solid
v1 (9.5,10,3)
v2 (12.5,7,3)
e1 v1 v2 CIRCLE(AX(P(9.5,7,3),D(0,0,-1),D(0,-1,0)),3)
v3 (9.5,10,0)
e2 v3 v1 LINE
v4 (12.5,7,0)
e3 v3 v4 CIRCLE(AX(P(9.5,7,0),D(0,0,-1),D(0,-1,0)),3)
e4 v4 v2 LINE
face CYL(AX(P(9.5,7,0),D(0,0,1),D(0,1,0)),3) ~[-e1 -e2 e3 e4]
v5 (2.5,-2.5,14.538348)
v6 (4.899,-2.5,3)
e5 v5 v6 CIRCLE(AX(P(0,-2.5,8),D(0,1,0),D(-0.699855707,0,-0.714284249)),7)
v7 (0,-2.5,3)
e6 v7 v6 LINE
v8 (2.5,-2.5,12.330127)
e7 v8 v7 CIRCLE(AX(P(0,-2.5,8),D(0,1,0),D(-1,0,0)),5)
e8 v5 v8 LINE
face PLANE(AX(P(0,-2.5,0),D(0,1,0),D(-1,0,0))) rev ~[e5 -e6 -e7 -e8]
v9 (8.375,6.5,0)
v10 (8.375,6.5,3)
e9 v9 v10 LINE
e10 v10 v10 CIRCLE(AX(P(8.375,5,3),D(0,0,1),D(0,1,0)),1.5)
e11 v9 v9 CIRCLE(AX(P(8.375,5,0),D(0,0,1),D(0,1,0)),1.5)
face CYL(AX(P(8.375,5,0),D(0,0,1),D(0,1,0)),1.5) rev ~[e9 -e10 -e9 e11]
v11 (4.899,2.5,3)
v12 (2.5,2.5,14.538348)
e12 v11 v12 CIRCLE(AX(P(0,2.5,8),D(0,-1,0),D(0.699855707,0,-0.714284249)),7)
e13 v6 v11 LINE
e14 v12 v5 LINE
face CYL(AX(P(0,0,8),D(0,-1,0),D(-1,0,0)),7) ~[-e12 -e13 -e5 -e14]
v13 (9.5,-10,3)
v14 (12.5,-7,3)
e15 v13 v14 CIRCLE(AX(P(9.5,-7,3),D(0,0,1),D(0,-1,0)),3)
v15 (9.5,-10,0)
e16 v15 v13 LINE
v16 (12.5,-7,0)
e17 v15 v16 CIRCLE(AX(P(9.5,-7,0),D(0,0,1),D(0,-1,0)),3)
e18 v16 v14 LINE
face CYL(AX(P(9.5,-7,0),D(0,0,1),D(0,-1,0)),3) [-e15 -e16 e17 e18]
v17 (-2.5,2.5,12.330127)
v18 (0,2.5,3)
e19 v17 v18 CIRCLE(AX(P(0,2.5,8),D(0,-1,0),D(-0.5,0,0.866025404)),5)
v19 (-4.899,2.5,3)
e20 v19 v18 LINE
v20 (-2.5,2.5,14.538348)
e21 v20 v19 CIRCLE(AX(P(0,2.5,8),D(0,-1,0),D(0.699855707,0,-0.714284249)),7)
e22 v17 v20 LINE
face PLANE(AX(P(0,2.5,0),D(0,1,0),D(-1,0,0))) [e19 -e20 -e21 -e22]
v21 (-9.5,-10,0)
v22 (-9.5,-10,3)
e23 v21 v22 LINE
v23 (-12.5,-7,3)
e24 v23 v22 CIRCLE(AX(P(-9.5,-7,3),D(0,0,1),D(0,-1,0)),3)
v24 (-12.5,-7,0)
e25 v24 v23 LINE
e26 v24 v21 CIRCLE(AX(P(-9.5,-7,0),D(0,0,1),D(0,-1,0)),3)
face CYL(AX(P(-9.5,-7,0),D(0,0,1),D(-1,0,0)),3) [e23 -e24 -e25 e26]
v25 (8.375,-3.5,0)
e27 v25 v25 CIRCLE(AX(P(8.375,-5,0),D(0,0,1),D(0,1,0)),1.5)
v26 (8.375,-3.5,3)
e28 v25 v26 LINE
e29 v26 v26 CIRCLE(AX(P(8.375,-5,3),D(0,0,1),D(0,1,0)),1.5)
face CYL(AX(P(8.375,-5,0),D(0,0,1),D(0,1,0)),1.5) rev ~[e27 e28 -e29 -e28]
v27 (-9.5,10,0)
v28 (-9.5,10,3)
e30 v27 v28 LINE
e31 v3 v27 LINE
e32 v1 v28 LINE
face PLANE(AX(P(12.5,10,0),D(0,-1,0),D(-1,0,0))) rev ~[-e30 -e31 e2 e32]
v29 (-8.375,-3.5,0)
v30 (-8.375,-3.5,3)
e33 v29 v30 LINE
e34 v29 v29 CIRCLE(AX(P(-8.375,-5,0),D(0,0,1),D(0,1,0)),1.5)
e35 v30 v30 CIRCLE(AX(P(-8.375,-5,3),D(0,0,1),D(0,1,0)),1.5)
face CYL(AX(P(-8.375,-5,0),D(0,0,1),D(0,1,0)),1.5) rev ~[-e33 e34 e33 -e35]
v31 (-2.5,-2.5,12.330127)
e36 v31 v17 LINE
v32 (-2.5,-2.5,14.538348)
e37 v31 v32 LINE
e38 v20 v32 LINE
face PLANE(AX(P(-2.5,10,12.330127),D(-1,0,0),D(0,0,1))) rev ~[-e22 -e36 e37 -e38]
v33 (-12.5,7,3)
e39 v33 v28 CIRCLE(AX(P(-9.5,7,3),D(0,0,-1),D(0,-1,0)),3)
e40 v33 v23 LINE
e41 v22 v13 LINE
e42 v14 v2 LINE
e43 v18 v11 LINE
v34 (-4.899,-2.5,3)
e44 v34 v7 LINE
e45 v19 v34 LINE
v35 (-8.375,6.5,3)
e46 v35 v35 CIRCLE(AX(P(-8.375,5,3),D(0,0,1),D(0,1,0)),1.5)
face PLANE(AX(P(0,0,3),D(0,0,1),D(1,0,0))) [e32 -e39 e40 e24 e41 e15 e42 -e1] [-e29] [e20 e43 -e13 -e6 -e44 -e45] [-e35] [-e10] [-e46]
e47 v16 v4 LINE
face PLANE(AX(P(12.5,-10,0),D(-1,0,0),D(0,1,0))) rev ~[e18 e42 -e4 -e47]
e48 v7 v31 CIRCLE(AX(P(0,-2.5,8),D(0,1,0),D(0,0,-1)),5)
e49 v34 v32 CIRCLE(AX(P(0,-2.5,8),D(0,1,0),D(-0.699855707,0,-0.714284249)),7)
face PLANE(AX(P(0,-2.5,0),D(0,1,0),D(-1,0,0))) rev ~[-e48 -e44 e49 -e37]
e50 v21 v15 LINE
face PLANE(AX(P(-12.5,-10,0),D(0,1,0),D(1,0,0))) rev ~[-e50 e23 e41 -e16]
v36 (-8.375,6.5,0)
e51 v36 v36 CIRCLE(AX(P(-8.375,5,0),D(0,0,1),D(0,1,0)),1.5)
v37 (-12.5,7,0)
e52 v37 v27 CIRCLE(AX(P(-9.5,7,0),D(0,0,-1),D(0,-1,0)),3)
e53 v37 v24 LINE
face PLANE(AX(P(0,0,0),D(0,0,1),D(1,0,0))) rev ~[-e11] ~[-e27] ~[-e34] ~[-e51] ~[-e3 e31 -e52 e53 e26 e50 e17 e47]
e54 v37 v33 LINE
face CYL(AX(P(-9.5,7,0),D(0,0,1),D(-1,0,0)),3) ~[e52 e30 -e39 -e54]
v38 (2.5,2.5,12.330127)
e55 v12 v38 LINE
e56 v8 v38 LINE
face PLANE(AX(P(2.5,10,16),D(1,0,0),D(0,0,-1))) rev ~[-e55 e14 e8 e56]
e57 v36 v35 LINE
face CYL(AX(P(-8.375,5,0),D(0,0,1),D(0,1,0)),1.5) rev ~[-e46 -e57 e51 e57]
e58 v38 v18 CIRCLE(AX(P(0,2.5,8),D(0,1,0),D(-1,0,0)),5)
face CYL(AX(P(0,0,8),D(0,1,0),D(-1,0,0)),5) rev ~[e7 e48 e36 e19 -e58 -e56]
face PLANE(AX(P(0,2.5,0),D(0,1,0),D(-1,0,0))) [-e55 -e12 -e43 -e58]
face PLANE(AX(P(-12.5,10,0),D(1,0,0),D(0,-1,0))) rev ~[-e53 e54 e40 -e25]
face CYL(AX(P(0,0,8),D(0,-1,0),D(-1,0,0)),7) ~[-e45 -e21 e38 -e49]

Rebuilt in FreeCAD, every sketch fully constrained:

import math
import FreeCAD as App
import Part
import Sketcher
from FreeCAD import Vector


def edges_at(feature, points):
    """Names of the edges that pass closest to the given points."""
    edges = feature.Shape.Edges
    near = lambda p: min(range(len(edges)), key=lambda i: edges[i].distToShape(Part.Vertex(*p))[0])
    return sorted({f"Edge{near(p) + 1}" for p in points})

doc = App.newDocument("Part")
body = doc.addObject("PartDesign::Body", "Body")

sketch1 = body.newObject("Sketcher::SketchObject", "Sketch")
sketch1.AttachmentSupport = (doc.getObject("XY_Plane"), [""])
sketch1.MapMode = "FlatFace"
sketch1.addGeometry([
    Part.LineSegment(Vector(-12, 10, 0), Vector(-12, -10, 0)),
    Part.LineSegment(Vector(-12, -10, 0), Vector(12, -10, 0)),
    Part.LineSegment(Vector(12, -10, 0), Vector(12, 10, 0)),
    Part.LineSegment(Vector(12, 10, 0), Vector(-12, 10, 0)),
], False)
sketch1.addConstraint([
    Sketcher.Constraint("Coincident", 0, 2, 1, 1),
    Sketcher.Constraint("Coincident", 1, 2, 2, 1),
    Sketcher.Constraint("Coincident", 2, 2, 3, 1),
    Sketcher.Constraint("Coincident", 3, 2, 0, 1),
    Sketcher.Constraint("Vertical", 0),
    Sketcher.Constraint("Horizontal", 1),
    Sketcher.Constraint("Vertical", 2),
    Sketcher.Constraint("Horizontal", 3),
    Sketcher.Constraint("Symmetric", 0, 2, 2, 2, -1, 1),
    Sketcher.Constraint("DistanceX", 1, 1, 1, 2, 25.0),
    Sketcher.Constraint("DistanceY", 0, 2, 0, 1, 20.0),
])
pad1 = body.newObject("PartDesign::Pad", "Pad")
pad1.Profile = sketch1
pad1.Length = 3

sketch2 = body.newObject("Sketcher::SketchObject", "Sketch001")
sketch2.AttachmentSupport = (doc.getObject("XZ_Plane"), [""])
sketch2.MapMode = "FlatFace"
sketch2.addGeometry([
    Part.ArcOfCircle(Part.Circle(Vector(0, 8, 0), Vector(0, 0, 1), 7), math.radians(-46), math.radians(226)),
    Part.LineSegment(Vector(4.9, 3, 0), Vector(0, 3, 0)),
    Part.LineSegment(Vector(0, 3, 0), Vector(-4.9, 3, 0)),
    Part.Circle(Vector(0, 8, 0), Vector(0, 0, 1), 5),
], False)
sketch2.addConstraint([
    Sketcher.Constraint("Coincident", 0, 1, 1, 1),
    Sketcher.Constraint("Coincident", 1, 2, 2, 1),
    Sketcher.Constraint("Coincident", 2, 2, 0, 2),
    Sketcher.Constraint("Horizontal", 1),
    Sketcher.Constraint("Horizontal", 2),
    Sketcher.Constraint("Coincident", 3, 3, 0, 3),
    Sketcher.Constraint("PointOnObject", 0, 3, -2),
    Sketcher.Constraint("PointOnObject", 1, 2, -2),
    Sketcher.Constraint("Diameter", 3, 10.0),
    Sketcher.Constraint("Radius", 0, 7.0),
    Sketcher.Constraint("DistanceY", -1, 1, 0, 3, 8.0),
    Sketcher.Constraint("DistanceY", -1, 1, 0, 1, 3.0),
])
pad2 = body.newObject("PartDesign::Pad", "Pad001")
pad2.Profile = sketch2
pad2.Length = 5
pad2.Midplane = True

sketch3 = body.newObject("Sketcher::SketchObject", "Sketch002")
sketch3.AttachmentSupport = (doc.getObject("XZ_Plane"), [""])
sketch3.MapMode = "FlatFace"
sketch3.AttachmentOffset = App.Placement(Vector(0, 0, -10), App.Rotation())
sketch3.addGeometry([
    Part.LineSegment(Vector(-2.5, 16, 0), Vector(2.5, 16, 0)),
    Part.LineSegment(Vector(2.5, 16, 0), Vector(2.5, 12, 0)),
    Part.LineSegment(Vector(2.5, 12, 0), Vector(-2.5, 12, 0)),
    Part.LineSegment(Vector(-2.5, 12, 0), Vector(-2.5, 16, 0)),
], False)
sketch3.addConstraint([
    Sketcher.Constraint("Coincident", 0, 2, 1, 1),
    Sketcher.Constraint("Coincident", 1, 2, 2, 1),
    Sketcher.Constraint("Coincident", 2, 2, 3, 1),
    Sketcher.Constraint("Coincident", 3, 2, 0, 1),
    Sketcher.Constraint("Horizontal", 0),
    Sketcher.Constraint("Vertical", 1),
    Sketcher.Constraint("Horizontal", 2),
    Sketcher.Constraint("Vertical", 3),
    Sketcher.Constraint("DistanceX", 0, 1, 0, 2, 5.0),
    Sketcher.Constraint("DistanceY", 1, 2, 1, 1, 4.0),
    Sketcher.Constraint("DistanceY", -1, 1, 0, 2, 16.0),
    Sketcher.Constraint("DistanceX", -1, 1, 0, 2, 2.5),
])
pocket1 = body.newObject("PartDesign::Pocket", "Pocket")
pocket1.Profile = sketch3
pocket1.Length = 20
pocket1.Reversed = True

sketch4 = body.newObject("Sketcher::SketchObject", "Sketch003")
sketch4.AttachmentSupport = (doc.getObject("XY_Plane"), [""])
sketch4.MapMode = "FlatFace"
sketch4.addGeometry([
    Part.Circle(Vector(-8.4, 5, 0), Vector(0, 0, 1), 1.5),
    Part.Circle(Vector(-8.4, -5, 0), Vector(0, 0, 1), 1.5),
    Part.Circle(Vector(8.4, 5, 0), Vector(0, 0, 1), 1.5),
    Part.Circle(Vector(8.4, -5, 0), Vector(0, 0, 1), 1.5),
], False)
sketch4.addConstraint([
    Sketcher.Constraint("Equal", 0, 1),
    Sketcher.Constraint("Equal", 1, 2),
    Sketcher.Constraint("Equal", 2, 3),
    Sketcher.Constraint("Symmetric", 1, 3, 2, 3, -1, 1),
    Sketcher.Constraint("Symmetric", 0, 3, 3, 3, -1, 1),
    Sketcher.Constraint("Symmetric", 0, 3, 2, 3, -2),
    Sketcher.Constraint("Diameter", 0, 3.0),
    Sketcher.Constraint("DistanceY", -1, 1, 0, 3, 5.0),
    Sketcher.Constraint("DistanceX", 0, 3, 2, 3, 16.75),
])
doc.recompute()
hole = body.newObject("PartDesign::Hole", "Hole")
hole.Profile = sketch4
hole.ThreadType = "None"
hole.Diameter = 3
hole.DepthType = "ThroughAll"
hole.Reversed = True
doc.recompute()

fillet = body.newObject("PartDesign::Fillet", "Fillet")
fillet.Base = (hole, edges_at(hole, [
    (-12.5, -10, 1.5),
    (-12.5, 10, 1.5),
    (12.5, 10, 1.5),
    (12.5, -10, 1.5),
]))
fillet.Radius = 3

doc.recompute()
